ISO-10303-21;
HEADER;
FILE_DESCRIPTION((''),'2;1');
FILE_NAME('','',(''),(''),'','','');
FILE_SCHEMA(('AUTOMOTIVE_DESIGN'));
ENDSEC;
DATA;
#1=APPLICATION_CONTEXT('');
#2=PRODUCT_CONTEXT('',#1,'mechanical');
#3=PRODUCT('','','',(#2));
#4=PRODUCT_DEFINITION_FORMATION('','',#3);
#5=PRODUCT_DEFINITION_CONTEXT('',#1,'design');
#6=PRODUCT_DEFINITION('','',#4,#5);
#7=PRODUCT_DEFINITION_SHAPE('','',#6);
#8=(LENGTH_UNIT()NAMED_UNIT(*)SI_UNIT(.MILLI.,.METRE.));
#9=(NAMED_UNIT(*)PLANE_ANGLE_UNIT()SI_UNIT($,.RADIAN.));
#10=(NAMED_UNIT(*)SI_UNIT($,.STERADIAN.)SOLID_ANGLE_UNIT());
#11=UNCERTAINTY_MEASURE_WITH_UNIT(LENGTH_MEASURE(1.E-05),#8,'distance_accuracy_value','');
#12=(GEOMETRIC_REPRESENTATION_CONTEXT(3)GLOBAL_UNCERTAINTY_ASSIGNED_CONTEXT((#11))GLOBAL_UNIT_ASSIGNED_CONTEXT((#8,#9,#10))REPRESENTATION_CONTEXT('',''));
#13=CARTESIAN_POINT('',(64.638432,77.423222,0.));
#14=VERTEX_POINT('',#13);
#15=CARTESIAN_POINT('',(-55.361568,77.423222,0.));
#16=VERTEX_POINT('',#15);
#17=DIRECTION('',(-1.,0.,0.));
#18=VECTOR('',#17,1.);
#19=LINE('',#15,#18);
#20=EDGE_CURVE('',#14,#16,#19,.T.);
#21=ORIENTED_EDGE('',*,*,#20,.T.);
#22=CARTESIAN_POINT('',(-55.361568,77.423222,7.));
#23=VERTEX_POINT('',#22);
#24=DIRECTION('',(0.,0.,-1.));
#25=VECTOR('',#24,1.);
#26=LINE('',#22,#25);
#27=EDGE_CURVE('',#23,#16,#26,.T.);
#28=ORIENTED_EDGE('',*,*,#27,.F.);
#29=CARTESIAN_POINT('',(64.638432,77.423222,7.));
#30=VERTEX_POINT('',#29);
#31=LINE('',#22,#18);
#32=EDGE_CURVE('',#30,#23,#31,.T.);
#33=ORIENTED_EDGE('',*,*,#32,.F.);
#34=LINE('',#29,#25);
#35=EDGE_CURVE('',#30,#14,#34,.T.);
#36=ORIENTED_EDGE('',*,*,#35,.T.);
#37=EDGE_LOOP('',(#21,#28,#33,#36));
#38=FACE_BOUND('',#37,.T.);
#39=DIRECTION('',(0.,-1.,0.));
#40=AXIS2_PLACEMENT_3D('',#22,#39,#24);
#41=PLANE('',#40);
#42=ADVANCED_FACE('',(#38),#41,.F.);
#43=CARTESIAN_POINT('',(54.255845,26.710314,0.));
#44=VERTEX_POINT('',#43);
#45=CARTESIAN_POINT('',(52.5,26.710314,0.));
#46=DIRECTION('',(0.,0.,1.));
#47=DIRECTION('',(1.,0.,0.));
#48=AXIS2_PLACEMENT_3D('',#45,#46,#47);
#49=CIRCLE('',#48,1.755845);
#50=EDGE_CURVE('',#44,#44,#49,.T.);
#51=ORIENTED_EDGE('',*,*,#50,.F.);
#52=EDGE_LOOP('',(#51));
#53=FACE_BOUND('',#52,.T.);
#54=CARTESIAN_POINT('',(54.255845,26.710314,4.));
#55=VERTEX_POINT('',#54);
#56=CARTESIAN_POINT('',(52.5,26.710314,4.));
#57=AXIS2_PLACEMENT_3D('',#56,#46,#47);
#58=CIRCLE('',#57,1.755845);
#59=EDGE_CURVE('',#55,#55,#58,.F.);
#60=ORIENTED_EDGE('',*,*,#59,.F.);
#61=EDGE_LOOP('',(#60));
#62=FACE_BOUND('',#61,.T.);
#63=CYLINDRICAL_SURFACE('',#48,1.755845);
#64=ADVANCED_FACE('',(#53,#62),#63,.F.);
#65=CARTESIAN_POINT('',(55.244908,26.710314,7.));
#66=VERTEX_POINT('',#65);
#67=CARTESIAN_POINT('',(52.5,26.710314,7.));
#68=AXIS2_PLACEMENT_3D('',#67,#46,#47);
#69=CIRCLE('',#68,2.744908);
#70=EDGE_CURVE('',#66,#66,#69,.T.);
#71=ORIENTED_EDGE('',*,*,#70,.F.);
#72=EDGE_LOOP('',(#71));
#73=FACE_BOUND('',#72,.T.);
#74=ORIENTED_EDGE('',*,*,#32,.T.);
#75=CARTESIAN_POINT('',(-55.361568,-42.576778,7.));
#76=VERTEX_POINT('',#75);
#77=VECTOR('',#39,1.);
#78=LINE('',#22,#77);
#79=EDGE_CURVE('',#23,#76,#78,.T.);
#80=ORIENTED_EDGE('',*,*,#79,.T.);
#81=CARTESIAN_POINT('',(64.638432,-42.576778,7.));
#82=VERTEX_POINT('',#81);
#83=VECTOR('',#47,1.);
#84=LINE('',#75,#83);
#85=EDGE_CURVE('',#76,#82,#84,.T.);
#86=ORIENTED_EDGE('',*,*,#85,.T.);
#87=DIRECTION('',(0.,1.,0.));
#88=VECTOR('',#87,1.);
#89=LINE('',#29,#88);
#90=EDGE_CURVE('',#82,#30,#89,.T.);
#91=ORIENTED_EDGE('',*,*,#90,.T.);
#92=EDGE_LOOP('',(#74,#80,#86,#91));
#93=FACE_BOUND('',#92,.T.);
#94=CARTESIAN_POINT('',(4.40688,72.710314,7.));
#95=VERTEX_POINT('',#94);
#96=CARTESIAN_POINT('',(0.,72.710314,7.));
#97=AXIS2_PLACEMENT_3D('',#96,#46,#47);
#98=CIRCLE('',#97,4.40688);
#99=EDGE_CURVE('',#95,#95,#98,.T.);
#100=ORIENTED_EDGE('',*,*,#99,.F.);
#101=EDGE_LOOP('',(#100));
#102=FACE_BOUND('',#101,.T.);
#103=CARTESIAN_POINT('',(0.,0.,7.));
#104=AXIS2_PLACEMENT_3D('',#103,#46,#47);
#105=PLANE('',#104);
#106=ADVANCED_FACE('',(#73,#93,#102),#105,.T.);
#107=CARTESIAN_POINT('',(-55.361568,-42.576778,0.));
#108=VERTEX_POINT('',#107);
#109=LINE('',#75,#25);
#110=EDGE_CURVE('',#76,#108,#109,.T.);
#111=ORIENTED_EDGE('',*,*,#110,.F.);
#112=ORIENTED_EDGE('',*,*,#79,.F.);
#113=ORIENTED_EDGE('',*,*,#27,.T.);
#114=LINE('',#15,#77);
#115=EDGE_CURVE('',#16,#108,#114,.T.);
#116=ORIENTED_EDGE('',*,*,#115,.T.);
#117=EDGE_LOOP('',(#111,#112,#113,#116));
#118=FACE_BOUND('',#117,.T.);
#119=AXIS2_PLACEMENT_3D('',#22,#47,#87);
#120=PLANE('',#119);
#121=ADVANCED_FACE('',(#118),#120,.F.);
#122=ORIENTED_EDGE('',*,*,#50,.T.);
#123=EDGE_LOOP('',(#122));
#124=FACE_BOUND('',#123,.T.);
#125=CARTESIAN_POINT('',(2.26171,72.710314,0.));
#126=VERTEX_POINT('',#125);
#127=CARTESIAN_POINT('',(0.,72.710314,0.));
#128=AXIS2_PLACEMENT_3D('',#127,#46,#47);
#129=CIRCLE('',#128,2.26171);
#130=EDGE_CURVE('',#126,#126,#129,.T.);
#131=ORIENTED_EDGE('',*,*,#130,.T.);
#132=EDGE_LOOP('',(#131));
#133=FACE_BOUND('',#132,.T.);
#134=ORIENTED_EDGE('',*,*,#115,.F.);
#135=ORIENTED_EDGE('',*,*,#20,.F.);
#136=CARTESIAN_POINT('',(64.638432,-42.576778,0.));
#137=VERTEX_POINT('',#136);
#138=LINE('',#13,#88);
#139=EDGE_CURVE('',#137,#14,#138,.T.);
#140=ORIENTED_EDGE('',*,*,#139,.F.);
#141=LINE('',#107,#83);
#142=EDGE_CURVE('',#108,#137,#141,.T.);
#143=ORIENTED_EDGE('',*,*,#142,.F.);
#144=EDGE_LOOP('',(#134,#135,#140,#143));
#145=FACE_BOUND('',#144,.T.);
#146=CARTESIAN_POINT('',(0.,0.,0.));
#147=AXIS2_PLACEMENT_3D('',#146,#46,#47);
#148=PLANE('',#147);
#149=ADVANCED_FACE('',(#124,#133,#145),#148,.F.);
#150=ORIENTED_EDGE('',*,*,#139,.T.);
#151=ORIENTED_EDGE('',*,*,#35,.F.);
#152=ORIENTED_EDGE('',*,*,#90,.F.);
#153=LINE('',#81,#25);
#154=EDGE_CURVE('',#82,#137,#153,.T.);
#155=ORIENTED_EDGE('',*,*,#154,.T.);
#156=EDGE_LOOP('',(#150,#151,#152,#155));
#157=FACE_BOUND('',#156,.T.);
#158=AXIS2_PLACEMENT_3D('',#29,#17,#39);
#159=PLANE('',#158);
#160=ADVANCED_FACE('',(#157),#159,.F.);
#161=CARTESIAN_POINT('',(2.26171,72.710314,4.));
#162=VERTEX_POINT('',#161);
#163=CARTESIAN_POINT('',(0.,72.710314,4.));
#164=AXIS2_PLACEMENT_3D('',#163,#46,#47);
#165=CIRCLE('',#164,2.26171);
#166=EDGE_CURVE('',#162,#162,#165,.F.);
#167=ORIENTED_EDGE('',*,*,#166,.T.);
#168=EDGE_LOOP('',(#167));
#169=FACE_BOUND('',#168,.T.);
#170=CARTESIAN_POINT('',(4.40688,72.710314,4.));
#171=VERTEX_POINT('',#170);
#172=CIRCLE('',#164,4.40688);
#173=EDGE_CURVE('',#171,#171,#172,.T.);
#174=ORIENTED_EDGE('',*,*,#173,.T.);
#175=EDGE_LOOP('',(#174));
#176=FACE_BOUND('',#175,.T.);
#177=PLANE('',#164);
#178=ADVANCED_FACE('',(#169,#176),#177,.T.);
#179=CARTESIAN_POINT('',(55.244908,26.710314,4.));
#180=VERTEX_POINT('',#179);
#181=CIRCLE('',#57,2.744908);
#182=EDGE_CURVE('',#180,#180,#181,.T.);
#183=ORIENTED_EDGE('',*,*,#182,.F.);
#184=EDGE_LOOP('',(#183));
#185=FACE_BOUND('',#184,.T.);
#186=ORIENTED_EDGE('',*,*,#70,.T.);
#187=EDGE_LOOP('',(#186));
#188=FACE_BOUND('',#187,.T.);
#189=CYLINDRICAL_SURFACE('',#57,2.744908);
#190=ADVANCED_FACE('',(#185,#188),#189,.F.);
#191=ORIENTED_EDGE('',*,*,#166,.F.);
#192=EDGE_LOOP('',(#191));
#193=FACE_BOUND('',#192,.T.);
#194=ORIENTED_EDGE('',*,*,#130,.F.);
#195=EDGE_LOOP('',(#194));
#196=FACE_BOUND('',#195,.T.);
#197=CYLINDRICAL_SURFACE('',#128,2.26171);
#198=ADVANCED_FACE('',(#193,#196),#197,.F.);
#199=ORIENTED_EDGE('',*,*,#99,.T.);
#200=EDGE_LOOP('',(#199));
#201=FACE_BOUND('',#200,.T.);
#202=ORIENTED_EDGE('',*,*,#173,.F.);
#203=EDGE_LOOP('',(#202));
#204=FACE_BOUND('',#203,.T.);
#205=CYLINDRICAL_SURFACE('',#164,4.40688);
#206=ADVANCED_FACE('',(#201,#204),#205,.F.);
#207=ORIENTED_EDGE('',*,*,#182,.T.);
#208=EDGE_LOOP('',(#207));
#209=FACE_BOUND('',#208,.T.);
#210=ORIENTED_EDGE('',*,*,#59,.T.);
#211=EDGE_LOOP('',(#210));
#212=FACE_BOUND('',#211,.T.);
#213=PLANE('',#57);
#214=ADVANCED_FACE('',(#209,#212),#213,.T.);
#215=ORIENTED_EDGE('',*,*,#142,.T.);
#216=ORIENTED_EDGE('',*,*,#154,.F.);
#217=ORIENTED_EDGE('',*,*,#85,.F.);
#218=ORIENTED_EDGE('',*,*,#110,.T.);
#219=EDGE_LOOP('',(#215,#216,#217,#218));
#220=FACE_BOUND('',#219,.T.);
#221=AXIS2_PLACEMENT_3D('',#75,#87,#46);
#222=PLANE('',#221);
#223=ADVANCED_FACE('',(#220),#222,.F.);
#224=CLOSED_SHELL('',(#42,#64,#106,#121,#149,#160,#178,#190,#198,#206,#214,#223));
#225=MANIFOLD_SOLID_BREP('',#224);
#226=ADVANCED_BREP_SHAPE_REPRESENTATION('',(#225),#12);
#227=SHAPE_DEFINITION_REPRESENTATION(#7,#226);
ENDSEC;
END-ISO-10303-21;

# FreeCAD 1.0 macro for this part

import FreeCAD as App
import Part
import Sketcher


def add_polygon(sketch, points):
    """Adds a closed chain of lines whose ends are joined by coincident constraints."""
    first, n = sketch.GeometryCount, len(points)
    for a, b in zip(points, points[1:] + points[:1]):
        sketch.addGeometry(Part.LineSegment(App.Vector(*a, 0), App.Vector(*b, 0)), False)
    for i in range(n):
        sketch.addConstraint(Sketcher.Constraint("Coincident", first + i, 2, first + (i + 1) % n, 1))

doc = App.newDocument("Part")
params = doc.addObject("Spreadsheet::Sheet", "Params")
for row, (alias, value) in enumerate([
    ("sketch1_width", "120 mm"),
    ("pad1_length", "7 mm"),
    ("pocket1_length", "7 mm"),
    ("pocket2_length", "3 mm"),
    ("pocket3_length", "7 mm"),
    ("pocket4_length", "3 mm"),
], start=1):
    params.set(f"A{row}", alias)
    params.set(f"B{row}", "=" + value)
    params.setAlias(f"B{row}", alias)

body = doc.addObject("PartDesign::Body", "Body")

sketch1 = body.newObject("Sketcher::SketchObject", "Sketch")
sketch1.AttachmentSupport = (doc.getObject("XY_Plane"), [""])
sketch1.MapMode = "FlatFace"
add_polygon(sketch1, [(-55, 77), (-55, -43), (65, -43), (65, 77)])
sketch1.addConstraint(Sketcher.Constraint("Vertical", 0))
sketch1.addConstraint(Sketcher.Constraint("Horizontal", 1))
sketch1.addConstraint(Sketcher.Constraint("Vertical", 2))
sketch1.addConstraint(Sketcher.Constraint("Horizontal", 3))
sketch1.addConstraint(Sketcher.Constraint("Equal", 3, 0))
sketch1.addConstraint(Sketcher.Constraint("DistanceX", 1, 1, 1, 2, 120.0))
sketch1.addConstraint(Sketcher.Constraint("DistanceX", 0, 2, -1, 1, 55.361568))
sketch1.addConstraint(Sketcher.Constraint("DistanceY", 0, 2, -1, 1, 42.576778))
sketch1.setExpression("Constraints[9]", "Params.sketch1_width")
pad1 = body.newObject("PartDesign::Pad", "Pad")
pad1.Profile = sketch1
pad1.setExpression("Length", "Params.pad1_length")

sketch2 = body.newObject("Sketcher::SketchObject", "Sketch001")
sketch2.AttachmentSupport = (doc.getObject("XY_Plane"), [""])
sketch2.MapMode = "FlatFace"
sketch2.AttachmentOffset = App.Placement(App.Vector(0, 0, 7), App.Rotation())
sketch2.addGeometry(Part.Circle(App.Vector(0, 72.7, 0), App.Vector(0, 0, 1), 2.3), False)
sketch2.addConstraint(Sketcher.Constraint("PointOnObject", 0, 3, -2))
sketch2.addConstraint(Sketcher.Constraint("Diameter", 0, 4.523419))
sketch2.addConstraint(Sketcher.Constraint("DistanceY", -1, 1, 0, 3, 72.710314))
pocket1 = body.newObject("PartDesign::Pocket", "Pocket")
pocket1.Profile = sketch2
pocket1.setExpression("Length", "Params.pocket1_length")

sketch3 = body.newObject("Sketcher::SketchObject", "Sketch002")
sketch3.AttachmentSupport = (doc.getObject("XY_Plane"), [""])
sketch3.MapMode = "FlatFace"
sketch3.AttachmentOffset = App.Placement(App.Vector(0, 0, 7), App.Rotation())
sketch3.addGeometry(Part.Circle(App.Vector(0, 72.7, 0), App.Vector(0, 0, 1), 4.4), False)
sketch3.addConstraint(Sketcher.Constraint("PointOnObject", 0, 3, -2))
sketch3.addConstraint(Sketcher.Constraint("Diameter", 0, 8.81376))
sketch3.addConstraint(Sketcher.Constraint("DistanceY", -1, 1, 0, 3, 72.710314))
pocket2 = body.newObject("PartDesign::Pocket", "Pocket001")
pocket2.Profile = sketch3
pocket2.setExpression("Length", "Params.pocket2_length")

sketch4 = body.newObject("Sketcher::SketchObject", "Sketch003")
sketch4.AttachmentSupport = (doc.getObject("XY_Plane"), [""])
sketch4.MapMode = "FlatFace"
sketch4.AttachmentOffset = App.Placement(App.Vector(0, 0, 7), App.Rotation())
sketch4.addGeometry(Part.Circle(App.Vector(52.5, 26.7, 0), App.Vector(0, 0, 1), 1.8), False)
sketch4.addConstraint(Sketcher.Constraint("DistanceX", -1, 1, 0, 3, 52.5))
sketch4.addConstraint(Sketcher.Constraint("Diameter", 0, 3.511689))
sketch4.addConstraint(Sketcher.Constraint("DistanceY", -1, 1, 0, 3, 26.710314))
pocket3 = body.newObject("PartDesign::Pocket", "Pocket002")
pocket3.Profile = sketch4
pocket3.setExpression("Length", "Params.pocket3_length")

sketch5 = body.newObject("Sketcher::SketchObject", "Sketch004")
sketch5.AttachmentSupport = (doc.getObject("XY_Plane"), [""])
sketch5.MapMode = "FlatFace"
sketch5.AttachmentOffset = App.Placement(App.Vector(0, 0, 7), App.Rotation())
sketch5.addGeometry(Part.Circle(App.Vector(52.5, 26.7, 0), App.Vector(0, 0, 1), 2.7), False)
sketch5.addConstraint(Sketcher.Constraint("DistanceX", -1, 1, 0, 3, 52.5))
sketch5.addConstraint(Sketcher.Constraint("Diameter", 0, 5.489815))
sketch5.addConstraint(Sketcher.Constraint("DistanceY", -1, 1, 0, 3, 26.710314))
pocket4 = body.newObject("PartDesign::Pocket", "Pocket003")
pocket4.Profile = sketch5
pocket4.setExpression("Length", "Params.pocket4_length")

doc.recompute()
